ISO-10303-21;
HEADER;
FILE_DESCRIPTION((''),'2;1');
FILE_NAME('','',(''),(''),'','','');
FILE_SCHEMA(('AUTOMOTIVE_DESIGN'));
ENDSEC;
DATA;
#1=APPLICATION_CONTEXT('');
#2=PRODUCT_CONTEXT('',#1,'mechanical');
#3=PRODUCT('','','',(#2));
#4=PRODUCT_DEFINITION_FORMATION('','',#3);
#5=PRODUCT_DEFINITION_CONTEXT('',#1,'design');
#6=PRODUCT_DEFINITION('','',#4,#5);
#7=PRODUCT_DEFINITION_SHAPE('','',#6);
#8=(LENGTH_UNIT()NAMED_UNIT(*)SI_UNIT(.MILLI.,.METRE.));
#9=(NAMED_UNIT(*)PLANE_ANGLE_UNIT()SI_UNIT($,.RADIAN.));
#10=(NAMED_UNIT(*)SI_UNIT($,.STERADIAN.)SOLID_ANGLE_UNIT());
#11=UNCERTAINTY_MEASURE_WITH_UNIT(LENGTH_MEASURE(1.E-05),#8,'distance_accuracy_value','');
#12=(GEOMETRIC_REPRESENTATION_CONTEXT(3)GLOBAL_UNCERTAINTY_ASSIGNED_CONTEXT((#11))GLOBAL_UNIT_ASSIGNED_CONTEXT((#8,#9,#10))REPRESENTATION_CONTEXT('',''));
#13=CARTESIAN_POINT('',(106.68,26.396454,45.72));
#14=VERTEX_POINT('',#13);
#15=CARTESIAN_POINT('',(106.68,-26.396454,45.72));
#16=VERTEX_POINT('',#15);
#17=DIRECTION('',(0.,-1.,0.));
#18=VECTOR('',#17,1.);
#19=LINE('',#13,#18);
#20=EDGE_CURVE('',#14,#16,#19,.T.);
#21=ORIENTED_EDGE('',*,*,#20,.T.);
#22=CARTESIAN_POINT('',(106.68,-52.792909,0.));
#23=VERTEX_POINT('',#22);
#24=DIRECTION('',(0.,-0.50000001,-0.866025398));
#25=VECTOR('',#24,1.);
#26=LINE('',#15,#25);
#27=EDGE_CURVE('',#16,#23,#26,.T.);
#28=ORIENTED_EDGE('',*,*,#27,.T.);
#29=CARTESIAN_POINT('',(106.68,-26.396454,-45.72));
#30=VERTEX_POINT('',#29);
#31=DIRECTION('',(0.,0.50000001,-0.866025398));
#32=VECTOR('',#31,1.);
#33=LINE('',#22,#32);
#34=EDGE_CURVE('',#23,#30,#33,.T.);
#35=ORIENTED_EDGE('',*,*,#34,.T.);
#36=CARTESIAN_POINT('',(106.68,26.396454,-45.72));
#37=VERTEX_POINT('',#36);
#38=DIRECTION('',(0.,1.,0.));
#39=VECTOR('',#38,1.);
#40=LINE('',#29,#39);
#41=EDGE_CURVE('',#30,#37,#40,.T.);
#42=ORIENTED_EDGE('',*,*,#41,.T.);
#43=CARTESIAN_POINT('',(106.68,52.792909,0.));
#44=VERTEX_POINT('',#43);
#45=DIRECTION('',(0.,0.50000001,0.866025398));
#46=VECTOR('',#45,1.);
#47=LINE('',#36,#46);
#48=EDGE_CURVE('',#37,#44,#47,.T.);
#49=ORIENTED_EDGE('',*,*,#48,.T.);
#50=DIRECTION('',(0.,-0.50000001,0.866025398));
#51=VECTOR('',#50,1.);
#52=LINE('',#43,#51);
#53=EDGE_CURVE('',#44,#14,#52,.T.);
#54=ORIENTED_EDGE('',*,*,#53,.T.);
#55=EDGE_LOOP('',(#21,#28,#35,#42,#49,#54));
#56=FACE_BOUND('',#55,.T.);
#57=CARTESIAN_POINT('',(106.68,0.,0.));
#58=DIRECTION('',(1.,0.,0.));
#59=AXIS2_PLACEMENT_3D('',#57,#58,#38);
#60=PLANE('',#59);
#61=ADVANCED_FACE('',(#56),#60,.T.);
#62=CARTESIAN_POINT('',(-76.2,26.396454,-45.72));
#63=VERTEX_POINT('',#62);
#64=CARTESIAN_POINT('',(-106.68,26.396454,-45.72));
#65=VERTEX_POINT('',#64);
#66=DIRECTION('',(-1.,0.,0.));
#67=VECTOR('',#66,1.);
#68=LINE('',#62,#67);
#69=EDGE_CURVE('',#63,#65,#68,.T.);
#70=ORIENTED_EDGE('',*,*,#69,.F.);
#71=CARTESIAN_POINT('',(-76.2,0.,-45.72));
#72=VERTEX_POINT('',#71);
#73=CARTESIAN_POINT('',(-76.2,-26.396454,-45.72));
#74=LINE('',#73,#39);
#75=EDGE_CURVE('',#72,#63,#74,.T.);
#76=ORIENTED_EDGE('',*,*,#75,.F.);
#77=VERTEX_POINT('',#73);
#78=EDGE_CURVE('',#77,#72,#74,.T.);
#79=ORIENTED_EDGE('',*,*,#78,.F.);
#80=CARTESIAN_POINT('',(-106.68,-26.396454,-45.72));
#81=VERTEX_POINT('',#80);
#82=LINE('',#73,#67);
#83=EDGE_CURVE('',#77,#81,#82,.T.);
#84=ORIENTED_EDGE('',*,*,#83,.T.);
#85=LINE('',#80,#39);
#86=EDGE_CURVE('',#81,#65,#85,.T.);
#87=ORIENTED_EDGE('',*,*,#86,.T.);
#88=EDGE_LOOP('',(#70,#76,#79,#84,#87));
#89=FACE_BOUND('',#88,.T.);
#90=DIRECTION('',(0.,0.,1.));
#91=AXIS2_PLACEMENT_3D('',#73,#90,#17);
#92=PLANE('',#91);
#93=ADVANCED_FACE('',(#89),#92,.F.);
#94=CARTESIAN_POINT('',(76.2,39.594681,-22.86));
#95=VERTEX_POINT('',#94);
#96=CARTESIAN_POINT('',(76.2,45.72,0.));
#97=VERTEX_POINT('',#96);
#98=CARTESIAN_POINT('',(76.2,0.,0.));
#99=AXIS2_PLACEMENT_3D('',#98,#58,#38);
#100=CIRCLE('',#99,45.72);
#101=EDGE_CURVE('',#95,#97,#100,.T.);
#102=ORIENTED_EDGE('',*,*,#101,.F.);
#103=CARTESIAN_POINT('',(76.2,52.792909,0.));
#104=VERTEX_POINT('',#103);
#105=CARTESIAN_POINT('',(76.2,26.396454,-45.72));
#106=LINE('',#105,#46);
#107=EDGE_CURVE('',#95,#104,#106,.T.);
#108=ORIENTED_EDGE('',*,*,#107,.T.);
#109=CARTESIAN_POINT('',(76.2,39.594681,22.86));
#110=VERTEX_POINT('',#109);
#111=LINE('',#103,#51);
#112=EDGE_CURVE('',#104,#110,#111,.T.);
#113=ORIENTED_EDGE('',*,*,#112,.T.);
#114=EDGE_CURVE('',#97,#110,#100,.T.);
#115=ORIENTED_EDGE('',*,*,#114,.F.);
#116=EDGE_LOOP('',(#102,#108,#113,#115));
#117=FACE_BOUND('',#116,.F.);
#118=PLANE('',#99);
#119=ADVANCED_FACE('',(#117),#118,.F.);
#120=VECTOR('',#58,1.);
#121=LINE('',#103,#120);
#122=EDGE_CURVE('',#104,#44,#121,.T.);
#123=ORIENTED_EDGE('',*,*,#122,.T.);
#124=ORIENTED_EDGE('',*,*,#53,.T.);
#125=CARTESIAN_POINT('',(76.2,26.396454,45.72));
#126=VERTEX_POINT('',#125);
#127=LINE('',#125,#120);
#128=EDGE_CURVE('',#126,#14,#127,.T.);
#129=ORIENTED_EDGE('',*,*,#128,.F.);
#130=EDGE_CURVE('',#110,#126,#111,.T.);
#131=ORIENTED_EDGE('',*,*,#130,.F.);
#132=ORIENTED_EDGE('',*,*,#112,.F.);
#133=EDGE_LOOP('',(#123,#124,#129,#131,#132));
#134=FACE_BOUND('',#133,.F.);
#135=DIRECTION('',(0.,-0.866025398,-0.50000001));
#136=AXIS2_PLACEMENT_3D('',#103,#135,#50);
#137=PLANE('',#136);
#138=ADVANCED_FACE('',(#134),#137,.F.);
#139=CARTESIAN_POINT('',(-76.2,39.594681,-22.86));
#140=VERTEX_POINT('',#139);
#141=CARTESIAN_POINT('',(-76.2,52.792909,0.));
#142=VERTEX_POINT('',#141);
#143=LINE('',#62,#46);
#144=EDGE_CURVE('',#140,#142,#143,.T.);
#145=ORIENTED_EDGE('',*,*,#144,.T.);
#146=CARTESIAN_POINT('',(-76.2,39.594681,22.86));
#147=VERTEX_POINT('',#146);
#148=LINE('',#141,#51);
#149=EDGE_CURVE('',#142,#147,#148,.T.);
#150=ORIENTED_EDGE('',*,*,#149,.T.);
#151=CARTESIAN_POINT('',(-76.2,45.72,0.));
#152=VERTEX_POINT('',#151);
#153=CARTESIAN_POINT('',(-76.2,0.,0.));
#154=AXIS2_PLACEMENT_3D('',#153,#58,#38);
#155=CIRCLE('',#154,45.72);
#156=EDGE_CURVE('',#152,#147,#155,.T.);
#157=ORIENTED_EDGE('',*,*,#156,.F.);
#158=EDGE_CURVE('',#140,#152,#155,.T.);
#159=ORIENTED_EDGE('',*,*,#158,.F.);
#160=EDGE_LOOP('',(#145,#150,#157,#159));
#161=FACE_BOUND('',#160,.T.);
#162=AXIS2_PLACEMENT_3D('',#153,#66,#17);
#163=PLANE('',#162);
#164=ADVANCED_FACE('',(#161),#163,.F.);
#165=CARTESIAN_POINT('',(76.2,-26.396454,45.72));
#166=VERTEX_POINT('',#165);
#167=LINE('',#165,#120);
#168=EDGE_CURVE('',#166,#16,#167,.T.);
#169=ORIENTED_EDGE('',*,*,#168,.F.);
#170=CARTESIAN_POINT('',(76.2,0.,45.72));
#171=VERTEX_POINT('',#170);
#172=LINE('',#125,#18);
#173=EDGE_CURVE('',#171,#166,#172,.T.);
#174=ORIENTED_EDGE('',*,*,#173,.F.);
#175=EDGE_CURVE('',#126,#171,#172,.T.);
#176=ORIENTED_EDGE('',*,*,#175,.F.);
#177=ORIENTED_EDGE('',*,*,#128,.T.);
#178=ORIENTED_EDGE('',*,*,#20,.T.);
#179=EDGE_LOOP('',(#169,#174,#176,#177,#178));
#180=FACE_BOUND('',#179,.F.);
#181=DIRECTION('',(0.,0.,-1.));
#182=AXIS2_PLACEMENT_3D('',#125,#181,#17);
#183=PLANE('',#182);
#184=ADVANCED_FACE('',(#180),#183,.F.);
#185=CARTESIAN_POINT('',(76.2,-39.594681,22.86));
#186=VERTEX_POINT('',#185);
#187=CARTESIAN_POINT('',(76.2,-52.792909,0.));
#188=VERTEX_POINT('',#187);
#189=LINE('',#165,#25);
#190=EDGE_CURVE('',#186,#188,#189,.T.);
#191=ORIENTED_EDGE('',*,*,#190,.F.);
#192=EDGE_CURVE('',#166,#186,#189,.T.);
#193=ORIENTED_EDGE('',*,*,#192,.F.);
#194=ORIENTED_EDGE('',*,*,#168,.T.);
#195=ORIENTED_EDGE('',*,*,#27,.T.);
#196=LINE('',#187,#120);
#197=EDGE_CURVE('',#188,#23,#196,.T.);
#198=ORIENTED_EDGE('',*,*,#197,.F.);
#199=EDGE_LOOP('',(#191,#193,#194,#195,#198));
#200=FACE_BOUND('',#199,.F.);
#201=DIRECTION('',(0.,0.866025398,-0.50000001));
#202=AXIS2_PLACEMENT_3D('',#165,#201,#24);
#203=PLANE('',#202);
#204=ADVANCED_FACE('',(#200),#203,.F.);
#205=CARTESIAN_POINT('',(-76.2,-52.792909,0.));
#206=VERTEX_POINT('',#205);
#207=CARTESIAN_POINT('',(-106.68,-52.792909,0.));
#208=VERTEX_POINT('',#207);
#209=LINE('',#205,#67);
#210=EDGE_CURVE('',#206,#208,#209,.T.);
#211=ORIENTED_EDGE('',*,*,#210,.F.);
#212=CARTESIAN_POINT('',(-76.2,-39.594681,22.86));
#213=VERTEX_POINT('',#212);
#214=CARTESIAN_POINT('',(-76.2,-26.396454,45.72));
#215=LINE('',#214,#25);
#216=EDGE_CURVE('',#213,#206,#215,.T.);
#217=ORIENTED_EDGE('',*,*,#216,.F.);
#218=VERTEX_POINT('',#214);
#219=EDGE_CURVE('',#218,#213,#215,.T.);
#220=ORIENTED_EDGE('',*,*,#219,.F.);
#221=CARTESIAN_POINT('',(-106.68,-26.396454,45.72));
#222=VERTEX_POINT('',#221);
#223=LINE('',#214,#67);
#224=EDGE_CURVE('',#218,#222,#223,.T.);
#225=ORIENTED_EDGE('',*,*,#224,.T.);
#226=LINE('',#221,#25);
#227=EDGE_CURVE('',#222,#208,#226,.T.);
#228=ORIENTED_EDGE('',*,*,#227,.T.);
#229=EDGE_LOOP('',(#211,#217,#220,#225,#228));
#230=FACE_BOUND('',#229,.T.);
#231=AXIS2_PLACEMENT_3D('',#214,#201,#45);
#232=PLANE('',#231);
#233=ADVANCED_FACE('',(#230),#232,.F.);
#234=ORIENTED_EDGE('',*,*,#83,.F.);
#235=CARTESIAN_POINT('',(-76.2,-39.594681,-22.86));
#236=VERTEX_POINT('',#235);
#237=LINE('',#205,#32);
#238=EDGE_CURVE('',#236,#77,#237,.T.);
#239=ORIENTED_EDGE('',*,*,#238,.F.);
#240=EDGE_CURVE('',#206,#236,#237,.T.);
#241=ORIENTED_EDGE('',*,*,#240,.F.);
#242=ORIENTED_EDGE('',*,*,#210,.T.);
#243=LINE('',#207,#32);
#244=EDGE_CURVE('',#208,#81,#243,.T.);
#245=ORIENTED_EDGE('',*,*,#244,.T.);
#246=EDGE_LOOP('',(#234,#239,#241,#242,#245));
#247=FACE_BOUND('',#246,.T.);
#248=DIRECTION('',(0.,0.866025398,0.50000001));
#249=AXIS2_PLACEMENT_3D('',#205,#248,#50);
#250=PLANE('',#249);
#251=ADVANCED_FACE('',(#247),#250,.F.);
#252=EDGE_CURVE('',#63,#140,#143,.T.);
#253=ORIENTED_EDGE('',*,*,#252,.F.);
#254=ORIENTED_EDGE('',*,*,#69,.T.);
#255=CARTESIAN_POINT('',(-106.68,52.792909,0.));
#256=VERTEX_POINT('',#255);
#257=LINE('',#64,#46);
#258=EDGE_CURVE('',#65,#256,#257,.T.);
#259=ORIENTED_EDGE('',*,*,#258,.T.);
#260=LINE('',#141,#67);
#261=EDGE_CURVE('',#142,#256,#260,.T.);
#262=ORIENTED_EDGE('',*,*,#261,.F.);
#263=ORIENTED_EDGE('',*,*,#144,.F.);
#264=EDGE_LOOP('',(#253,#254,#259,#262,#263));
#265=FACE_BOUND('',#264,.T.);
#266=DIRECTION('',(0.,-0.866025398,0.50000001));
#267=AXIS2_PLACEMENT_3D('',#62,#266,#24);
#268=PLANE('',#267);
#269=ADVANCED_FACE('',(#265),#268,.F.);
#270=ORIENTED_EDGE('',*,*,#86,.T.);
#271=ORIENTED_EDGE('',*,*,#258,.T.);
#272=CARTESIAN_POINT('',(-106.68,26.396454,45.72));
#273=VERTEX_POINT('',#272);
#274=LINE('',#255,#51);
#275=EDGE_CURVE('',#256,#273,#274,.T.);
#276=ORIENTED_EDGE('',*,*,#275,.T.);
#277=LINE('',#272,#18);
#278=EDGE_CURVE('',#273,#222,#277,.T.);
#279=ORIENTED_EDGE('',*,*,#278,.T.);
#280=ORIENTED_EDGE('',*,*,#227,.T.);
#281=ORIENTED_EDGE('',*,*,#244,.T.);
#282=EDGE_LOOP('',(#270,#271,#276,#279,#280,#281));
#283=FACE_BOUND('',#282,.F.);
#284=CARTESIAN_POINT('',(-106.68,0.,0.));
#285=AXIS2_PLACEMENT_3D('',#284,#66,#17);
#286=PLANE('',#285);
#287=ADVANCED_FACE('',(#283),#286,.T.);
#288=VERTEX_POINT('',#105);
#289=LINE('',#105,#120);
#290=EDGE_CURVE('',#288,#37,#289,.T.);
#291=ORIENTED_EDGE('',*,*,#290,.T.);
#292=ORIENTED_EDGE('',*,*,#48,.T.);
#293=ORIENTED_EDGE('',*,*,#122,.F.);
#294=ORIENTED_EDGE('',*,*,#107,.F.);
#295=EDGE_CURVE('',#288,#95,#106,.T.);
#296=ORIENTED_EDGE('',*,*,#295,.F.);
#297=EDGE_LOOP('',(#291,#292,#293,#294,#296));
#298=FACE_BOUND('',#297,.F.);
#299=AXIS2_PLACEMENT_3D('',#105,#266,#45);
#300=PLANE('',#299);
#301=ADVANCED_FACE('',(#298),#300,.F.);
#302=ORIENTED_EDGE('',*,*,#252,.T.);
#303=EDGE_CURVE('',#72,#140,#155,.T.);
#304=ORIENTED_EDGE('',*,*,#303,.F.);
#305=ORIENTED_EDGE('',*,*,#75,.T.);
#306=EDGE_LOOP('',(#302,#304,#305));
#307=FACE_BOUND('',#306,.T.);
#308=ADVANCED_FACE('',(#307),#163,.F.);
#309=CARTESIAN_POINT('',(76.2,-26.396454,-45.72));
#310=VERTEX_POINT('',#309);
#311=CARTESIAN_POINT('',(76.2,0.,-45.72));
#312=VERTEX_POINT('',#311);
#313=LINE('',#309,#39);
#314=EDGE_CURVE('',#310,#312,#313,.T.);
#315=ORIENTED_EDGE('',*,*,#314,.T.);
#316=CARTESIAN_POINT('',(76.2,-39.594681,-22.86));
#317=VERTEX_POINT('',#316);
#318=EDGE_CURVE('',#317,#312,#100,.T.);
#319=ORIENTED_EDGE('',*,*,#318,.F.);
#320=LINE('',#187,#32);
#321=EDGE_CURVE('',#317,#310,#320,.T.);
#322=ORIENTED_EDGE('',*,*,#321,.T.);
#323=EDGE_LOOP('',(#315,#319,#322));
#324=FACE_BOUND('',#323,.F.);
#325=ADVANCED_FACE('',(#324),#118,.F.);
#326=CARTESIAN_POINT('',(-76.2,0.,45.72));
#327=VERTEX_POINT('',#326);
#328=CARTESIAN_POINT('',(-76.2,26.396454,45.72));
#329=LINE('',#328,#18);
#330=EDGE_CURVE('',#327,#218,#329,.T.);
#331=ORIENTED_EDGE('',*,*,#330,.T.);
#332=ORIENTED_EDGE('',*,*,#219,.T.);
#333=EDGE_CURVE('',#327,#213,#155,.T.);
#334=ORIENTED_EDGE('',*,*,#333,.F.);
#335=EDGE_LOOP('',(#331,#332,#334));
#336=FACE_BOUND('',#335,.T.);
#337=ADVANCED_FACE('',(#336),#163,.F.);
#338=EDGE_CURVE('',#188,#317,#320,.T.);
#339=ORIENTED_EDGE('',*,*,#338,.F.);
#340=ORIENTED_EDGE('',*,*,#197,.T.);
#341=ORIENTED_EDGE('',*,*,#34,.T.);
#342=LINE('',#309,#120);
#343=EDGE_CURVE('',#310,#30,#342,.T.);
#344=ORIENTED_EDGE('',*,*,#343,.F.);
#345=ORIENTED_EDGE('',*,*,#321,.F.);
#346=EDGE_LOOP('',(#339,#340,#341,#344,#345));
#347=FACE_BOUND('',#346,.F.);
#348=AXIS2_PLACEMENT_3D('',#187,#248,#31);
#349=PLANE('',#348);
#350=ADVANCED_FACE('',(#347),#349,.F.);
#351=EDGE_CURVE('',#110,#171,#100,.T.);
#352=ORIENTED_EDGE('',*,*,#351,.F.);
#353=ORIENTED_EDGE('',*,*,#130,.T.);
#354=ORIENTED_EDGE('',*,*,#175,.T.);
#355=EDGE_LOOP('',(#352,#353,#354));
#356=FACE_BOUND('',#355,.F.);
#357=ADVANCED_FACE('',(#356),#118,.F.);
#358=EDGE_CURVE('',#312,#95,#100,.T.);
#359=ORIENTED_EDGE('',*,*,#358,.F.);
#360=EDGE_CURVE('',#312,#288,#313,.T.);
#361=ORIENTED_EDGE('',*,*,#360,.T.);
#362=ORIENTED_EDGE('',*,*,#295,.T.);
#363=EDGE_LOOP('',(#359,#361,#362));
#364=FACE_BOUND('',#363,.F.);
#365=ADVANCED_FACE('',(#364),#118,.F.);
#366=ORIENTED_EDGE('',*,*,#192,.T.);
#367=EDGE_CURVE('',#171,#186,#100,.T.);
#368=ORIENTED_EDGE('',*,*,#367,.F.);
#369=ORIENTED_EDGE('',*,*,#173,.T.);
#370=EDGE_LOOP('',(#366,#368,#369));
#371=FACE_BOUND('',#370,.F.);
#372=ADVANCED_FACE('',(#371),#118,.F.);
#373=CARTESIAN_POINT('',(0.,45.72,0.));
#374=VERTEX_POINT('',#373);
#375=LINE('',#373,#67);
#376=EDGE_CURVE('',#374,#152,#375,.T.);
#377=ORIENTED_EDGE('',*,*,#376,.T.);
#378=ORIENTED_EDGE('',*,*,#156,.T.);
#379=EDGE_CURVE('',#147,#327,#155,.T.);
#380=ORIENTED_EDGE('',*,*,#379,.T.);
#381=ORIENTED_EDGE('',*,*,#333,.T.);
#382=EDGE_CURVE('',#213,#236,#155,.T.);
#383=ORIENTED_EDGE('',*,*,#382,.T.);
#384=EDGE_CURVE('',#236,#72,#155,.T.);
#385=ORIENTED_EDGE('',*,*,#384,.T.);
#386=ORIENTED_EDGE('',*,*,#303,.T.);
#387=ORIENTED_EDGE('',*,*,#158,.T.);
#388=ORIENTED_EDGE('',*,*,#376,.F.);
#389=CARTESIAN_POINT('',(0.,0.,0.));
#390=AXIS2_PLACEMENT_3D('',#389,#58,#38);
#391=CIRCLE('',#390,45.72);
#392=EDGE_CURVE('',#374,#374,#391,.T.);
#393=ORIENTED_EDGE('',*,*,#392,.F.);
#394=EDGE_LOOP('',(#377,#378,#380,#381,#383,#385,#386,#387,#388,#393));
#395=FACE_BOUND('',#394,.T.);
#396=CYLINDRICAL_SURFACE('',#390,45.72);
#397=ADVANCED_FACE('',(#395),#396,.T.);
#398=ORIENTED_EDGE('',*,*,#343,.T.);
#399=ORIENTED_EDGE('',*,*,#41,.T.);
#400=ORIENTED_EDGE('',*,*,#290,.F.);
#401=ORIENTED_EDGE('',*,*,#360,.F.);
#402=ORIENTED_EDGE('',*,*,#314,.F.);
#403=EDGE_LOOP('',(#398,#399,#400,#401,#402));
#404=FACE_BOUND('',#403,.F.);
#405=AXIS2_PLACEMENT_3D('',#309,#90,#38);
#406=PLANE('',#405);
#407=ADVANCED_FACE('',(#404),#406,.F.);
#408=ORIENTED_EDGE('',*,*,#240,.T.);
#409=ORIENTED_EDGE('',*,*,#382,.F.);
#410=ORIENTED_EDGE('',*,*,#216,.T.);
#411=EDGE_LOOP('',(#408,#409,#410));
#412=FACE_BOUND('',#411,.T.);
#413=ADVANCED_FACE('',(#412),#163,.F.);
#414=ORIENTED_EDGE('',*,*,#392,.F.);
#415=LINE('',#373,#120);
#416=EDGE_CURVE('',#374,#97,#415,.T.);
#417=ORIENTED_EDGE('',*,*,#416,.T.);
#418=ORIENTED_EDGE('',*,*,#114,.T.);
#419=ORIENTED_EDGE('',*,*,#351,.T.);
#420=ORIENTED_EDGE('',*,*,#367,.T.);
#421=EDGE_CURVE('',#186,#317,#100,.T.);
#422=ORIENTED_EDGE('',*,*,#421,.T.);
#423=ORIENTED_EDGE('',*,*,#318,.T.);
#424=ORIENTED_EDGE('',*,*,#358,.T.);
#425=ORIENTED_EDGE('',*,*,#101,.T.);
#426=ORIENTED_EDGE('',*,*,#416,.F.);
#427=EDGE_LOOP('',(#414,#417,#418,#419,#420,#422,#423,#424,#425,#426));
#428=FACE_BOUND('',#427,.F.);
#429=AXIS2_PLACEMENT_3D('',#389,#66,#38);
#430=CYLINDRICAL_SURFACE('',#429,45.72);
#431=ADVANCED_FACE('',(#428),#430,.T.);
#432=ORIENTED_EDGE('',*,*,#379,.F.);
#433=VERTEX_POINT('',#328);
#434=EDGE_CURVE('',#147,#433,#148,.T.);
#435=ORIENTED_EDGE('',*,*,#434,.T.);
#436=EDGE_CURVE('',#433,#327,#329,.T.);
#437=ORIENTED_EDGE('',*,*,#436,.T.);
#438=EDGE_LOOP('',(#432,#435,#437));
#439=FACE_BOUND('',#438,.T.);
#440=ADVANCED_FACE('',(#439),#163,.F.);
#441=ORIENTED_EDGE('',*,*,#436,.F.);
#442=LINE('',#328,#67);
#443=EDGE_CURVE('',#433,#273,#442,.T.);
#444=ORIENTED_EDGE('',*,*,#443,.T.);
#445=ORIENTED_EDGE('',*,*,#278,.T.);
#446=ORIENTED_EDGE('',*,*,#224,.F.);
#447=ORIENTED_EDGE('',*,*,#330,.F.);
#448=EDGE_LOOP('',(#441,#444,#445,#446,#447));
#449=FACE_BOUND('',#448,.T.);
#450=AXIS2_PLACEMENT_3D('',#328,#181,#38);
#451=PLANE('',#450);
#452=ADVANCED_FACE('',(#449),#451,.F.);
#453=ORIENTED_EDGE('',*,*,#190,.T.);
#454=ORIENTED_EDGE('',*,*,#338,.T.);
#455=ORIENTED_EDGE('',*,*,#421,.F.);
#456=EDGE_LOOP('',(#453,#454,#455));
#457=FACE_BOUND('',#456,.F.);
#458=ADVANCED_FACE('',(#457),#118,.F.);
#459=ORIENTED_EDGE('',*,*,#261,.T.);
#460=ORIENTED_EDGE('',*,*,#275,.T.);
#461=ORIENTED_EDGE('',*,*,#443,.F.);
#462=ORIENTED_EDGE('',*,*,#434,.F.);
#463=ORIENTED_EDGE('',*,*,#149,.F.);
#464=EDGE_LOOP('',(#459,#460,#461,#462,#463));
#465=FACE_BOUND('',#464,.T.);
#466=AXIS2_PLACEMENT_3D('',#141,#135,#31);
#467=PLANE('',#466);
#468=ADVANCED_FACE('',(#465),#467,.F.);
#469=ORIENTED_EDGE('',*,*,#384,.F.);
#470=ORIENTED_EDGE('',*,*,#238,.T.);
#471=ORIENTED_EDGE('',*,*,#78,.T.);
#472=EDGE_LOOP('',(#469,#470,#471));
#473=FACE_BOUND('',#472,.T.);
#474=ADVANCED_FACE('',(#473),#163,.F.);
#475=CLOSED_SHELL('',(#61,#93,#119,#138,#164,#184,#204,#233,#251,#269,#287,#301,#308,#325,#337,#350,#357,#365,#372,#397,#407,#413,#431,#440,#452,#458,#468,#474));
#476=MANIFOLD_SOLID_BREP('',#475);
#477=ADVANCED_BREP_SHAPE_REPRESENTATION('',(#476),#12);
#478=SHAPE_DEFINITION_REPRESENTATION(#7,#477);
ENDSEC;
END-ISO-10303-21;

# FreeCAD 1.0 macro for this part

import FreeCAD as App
import Part
import Sketcher

V = App.Vector
Q = App.Units.Quantity


def add_polygon(sketch, points):
    """Adds a closed chain of lines whose ends are joined by coincident constraints."""
    first, n = sketch.GeometryCount, len(points)
    for a, b in zip(points, points[1:] + points[:1]):
        sketch.addGeometry(Part.LineSegment(App.Vector(*a, 0), App.Vector(*b, 0)), False)
    for i in range(n):
        sketch.addConstraint(Sketcher.Constraint("Coincident", first + i, 2, first + (i + 1) % n, 1))

doc = App.newDocument("Part")
body = doc.addObject("PartDesign::Body", "Body")

# Sketch on YZ plane
sketch1 = doc.addObject("Sketcher::SketchObject", "Sketch")
body.addObject(sketch1)
sketch1.AttachmentSupport = (doc.YZ_Plane, [""])
sketch1.MapMode = "FlatFace"
sketch1.addGeometry(Part.Circle(V(0, 0, 0), V(0, 0, 1), 46), False)
sketch1.addConstraint([
    Sketcher.Constraint("Coincident", 0, 3, -1, 1),
    Sketcher.Constraint("Diameter", 0, Q("3.6 in")),
])
pad1 = doc.addObject("PartDesign::Pad", "Pad")
body.addObject(pad1)
pad1.Profile = sketch1
pad1.Length = Q("3 in")

# Sketch on YZ plane
sketch2 = doc.addObject("Sketcher::SketchObject", "Sketch001")
body.addObject(sketch2)
sketch2.AttachmentSupport = (doc.YZ_Plane, [""])
sketch2.MapMode = "FlatFace"
sketch2.AttachmentOffset = App.Placement(V(0, 0, 3 * 25.4), App.Rotation())
add_polygon(sketch2, [(-26, -46), (26, -46), (53, 0), (26, 46), (-26, 46), (-53, 0)])  # lines 0-5
sketch2.addConstraint([
    Sketcher.Constraint("Horizontal", 0),
    Sketcher.Constraint("Horizontal", 3),
    Sketcher.Constraint("Symmetric", 0, 2, 3, 2, -1, 1),
    Sketcher.Constraint("Symmetric", 1, 2, 4, 2, -1, 1),
    Sketcher.Constraint("PointOnObject", 1, 2, -1),
    Sketcher.Constraint("Parallel", 2, 5),
    Sketcher.Constraint("Vertical", 0, 2, 2, 2),
    Sketcher.Constraint("Angle", 1, Q("59.999999 deg")),
    Sketcher.Constraint("DistanceY", 0, 2, -1, 1, Q("1.8 in")),
    Sketcher.Constraint("DistanceX", 0, 1, 0, 2, Q("52.792908 mm")),
])
pad2 = doc.addObject("PartDesign::Pad", "Pad001")
body.addObject(pad2)
pad2.Profile = sketch2
pad2.Length = Q("1.2 in")
body2 = doc.addObject("PartDesign::Body", "Body001")
doc.recompute()

body2.BaseFeature = body
doc.recompute()

mirroring = doc.addObject("Part::Mirroring", "Mirroring")
mirroring.Source = body
mirroring.Base = V(0, 0, 0)
mirroring.Normal = V(1, 0, 0)
body3 = doc.addObject("PartDesign::Body", "Body002")
body3.BaseFeature = mirroring
boolean = doc.addObject("PartDesign::Boolean", "Boolean")
body2.addObject(boolean)
boolean.Type = "Fuse"
boolean.addObjects([body3])
doc.recompute()
mirroring.Visibility = False

doc.recompute()
